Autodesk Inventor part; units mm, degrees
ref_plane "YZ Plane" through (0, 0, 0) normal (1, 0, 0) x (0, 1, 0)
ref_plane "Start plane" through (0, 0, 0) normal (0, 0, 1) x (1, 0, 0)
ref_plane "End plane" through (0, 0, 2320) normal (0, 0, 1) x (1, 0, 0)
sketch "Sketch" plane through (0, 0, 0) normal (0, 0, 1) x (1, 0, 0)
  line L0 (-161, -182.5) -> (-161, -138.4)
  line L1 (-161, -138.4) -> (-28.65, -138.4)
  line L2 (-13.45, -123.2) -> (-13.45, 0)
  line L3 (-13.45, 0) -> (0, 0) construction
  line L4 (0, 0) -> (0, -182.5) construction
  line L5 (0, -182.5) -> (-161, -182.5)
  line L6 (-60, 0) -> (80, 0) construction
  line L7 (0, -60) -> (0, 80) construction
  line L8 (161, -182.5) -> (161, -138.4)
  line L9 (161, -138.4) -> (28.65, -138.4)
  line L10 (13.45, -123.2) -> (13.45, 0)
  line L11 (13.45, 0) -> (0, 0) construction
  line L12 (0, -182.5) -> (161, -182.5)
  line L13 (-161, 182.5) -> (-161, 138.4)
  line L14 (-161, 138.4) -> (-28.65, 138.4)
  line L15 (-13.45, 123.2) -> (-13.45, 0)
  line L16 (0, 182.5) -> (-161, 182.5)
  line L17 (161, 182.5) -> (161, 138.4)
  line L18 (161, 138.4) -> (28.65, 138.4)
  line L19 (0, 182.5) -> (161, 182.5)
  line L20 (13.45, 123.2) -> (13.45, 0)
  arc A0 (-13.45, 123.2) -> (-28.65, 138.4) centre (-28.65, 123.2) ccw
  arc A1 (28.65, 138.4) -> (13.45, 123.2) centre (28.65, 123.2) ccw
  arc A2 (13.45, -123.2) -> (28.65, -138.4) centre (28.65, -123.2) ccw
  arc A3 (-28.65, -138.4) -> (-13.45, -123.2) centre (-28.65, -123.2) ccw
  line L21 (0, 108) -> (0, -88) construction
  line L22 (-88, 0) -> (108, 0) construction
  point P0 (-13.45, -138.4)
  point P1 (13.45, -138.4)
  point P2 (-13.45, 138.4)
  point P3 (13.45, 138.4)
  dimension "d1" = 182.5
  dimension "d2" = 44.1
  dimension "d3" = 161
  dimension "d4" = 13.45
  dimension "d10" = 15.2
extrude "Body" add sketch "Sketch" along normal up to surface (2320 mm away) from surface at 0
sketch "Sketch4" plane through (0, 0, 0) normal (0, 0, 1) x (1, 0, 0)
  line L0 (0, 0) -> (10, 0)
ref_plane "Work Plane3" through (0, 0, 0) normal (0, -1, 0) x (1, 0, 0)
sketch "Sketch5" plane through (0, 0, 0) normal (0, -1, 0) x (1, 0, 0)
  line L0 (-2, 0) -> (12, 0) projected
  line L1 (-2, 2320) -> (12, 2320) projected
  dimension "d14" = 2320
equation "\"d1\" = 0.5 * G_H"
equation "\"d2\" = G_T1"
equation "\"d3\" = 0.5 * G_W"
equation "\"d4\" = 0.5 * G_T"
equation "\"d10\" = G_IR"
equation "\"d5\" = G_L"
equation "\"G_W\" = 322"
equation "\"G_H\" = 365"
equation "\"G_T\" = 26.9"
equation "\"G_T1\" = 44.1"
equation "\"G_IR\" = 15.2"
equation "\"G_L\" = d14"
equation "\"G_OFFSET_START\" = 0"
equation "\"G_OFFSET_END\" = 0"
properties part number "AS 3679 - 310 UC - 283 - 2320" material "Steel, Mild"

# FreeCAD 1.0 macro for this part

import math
import FreeCAD as App
import Part
import Sketcher
Q = App.Units.Quantity

doc = App.newDocument("Part")
body = doc.addObject("PartDesign::Body", "Body")

sketch1 = body.newObject("Sketcher::SketchObject", "Sketch")
sketch1.AttachmentSupport = (doc.getObject("XY_Plane"), [""])
sketch1.MapMode = "FlatFace"
sketch1.addGeometry([
    Part.LineSegment(App.Vector(-161, -138, 0), App.Vector(-161, -182, 0)),
    Part.LineSegment(App.Vector(-161, -182, 0), App.Vector(161, -182, 0)),
    Part.LineSegment(App.Vector(161, -182, 0), App.Vector(161, -138, 0)),
    Part.LineSegment(App.Vector(161, -138, 0), App.Vector(29, -138, 0)),
    Part.ArcOfCircle(Part.Circle(App.Vector(29, -123, 0), App.Vector(0, 0, 1), 15), math.radians(180), math.radians(270)),
    Part.LineSegment(App.Vector(13, -123, 0), App.Vector(13, 123, 0)),
    Part.ArcOfCircle(Part.Circle(App.Vector(29, 123, 0), App.Vector(0, 0, 1), 15), math.radians(90), math.radians(180)),
    Part.LineSegment(App.Vector(29, 138, 0), App.Vector(161, 138, 0)),
    Part.LineSegment(App.Vector(161, 138, 0), App.Vector(161, 182, 0)),
    Part.LineSegment(App.Vector(161, 182, 0), App.Vector(-161, 182, 0)),
    Part.LineSegment(App.Vector(-161, 182, 0), App.Vector(-161, 138, 0)),
    Part.LineSegment(App.Vector(-161, 138, 0), App.Vector(-29, 138, 0)),
    Part.ArcOfCircle(Part.Circle(App.Vector(-29, 123, 0), App.Vector(0, 0, 1), 15), math.radians(0), math.radians(90)),
    Part.LineSegment(App.Vector(-13, 123, 0), App.Vector(-13, -123, 0)),
    Part.ArcOfCircle(Part.Circle(App.Vector(-29, -123, 0), App.Vector(0, 0, 1), 15), math.radians(-90), math.radians(0)),
    Part.LineSegment(App.Vector(-29, -138, 0), App.Vector(-161, -138, 0)),
], False)
sketch1.addConstraint([
    Sketcher.Constraint("Coincident", 0, 2, 1, 1),
    Sketcher.Constraint("Coincident", 1, 2, 2, 1),
    Sketcher.Constraint("Coincident", 2, 2, 3, 1),
    Sketcher.Constraint("Tangent", 3, 2, 4, 2),
    Sketcher.Constraint("Tangent", 4, 1, 5, 1),
    Sketcher.Constraint("Tangent", 5, 2, 6, 2),
    Sketcher.Constraint("Tangent", 6, 1, 7, 1),
    Sketcher.Constraint("Coincident", 7, 2, 8, 1),
    Sketcher.Constraint("Coincident", 8, 2, 9, 1),
    Sketcher.Constraint("Coincident", 9, 2, 10, 1),
    Sketcher.Constraint("Coincident", 10, 2, 11, 1),
    Sketcher.Constraint("Tangent", 11, 2, 12, 2),
    Sketcher.Constraint("Tangent", 12, 1, 13, 1),
    Sketcher.Constraint("Tangent", 13, 2, 14, 2),
    Sketcher.Constraint("Tangent", 14, 1, 15, 1),
    Sketcher.Constraint("Coincident", 15, 2, 0, 1),
    Sketcher.Constraint("Vertical", 0),
    Sketcher.Constraint("Horizontal", 1),
    Sketcher.Constraint("Vertical", 2),
    Sketcher.Constraint("Horizontal", 3),
    Sketcher.Constraint("Vertical", 5),
    Sketcher.Constraint("Horizontal", 7),
    Sketcher.Constraint("Vertical", 8),
    Sketcher.Constraint("Horizontal", 9),
    Sketcher.Constraint("Vertical", 10),
    Sketcher.Constraint("Horizontal", 11),
    Sketcher.Constraint("Vertical", 13),
    Sketcher.Constraint("Horizontal", 15),
    Sketcher.Constraint("Equal", 4, 6),
    Sketcher.Constraint("Equal", 6, 12),
    Sketcher.Constraint("Equal", 12, 14),
    Sketcher.Constraint("Symmetric", 4, 3, 12, 3, -1, 1),
    Sketcher.Constraint("Symmetric", 0, 2, 8, 2, -1, 1),
    Sketcher.Constraint("Symmetric", 7, 2, 10, 2, -2),
    Sketcher.Constraint("Symmetric", 2, 2, 15, 2, -2),
    Sketcher.Constraint("Radius", 4, Q("15.2 mm")),
    Sketcher.Constraint("DistanceY", 0, 2, 0, 1, Q("44.1 mm")),
    Sketcher.Constraint("DistanceX", 0, 2, -1, 1, Q("161 mm")),
    Sketcher.Constraint("DistanceY", 0, 2, -1, 1, Q("182.5 mm")),
    Sketcher.Constraint("DistanceX", -1, 1, 4, 1, Q("13.45 mm")),
])
pad1 = body.newObject("PartDesign::Pad", "Pad")
pad1.Profile = sketch1
pad1.Length = 2320

doc.recompute()
